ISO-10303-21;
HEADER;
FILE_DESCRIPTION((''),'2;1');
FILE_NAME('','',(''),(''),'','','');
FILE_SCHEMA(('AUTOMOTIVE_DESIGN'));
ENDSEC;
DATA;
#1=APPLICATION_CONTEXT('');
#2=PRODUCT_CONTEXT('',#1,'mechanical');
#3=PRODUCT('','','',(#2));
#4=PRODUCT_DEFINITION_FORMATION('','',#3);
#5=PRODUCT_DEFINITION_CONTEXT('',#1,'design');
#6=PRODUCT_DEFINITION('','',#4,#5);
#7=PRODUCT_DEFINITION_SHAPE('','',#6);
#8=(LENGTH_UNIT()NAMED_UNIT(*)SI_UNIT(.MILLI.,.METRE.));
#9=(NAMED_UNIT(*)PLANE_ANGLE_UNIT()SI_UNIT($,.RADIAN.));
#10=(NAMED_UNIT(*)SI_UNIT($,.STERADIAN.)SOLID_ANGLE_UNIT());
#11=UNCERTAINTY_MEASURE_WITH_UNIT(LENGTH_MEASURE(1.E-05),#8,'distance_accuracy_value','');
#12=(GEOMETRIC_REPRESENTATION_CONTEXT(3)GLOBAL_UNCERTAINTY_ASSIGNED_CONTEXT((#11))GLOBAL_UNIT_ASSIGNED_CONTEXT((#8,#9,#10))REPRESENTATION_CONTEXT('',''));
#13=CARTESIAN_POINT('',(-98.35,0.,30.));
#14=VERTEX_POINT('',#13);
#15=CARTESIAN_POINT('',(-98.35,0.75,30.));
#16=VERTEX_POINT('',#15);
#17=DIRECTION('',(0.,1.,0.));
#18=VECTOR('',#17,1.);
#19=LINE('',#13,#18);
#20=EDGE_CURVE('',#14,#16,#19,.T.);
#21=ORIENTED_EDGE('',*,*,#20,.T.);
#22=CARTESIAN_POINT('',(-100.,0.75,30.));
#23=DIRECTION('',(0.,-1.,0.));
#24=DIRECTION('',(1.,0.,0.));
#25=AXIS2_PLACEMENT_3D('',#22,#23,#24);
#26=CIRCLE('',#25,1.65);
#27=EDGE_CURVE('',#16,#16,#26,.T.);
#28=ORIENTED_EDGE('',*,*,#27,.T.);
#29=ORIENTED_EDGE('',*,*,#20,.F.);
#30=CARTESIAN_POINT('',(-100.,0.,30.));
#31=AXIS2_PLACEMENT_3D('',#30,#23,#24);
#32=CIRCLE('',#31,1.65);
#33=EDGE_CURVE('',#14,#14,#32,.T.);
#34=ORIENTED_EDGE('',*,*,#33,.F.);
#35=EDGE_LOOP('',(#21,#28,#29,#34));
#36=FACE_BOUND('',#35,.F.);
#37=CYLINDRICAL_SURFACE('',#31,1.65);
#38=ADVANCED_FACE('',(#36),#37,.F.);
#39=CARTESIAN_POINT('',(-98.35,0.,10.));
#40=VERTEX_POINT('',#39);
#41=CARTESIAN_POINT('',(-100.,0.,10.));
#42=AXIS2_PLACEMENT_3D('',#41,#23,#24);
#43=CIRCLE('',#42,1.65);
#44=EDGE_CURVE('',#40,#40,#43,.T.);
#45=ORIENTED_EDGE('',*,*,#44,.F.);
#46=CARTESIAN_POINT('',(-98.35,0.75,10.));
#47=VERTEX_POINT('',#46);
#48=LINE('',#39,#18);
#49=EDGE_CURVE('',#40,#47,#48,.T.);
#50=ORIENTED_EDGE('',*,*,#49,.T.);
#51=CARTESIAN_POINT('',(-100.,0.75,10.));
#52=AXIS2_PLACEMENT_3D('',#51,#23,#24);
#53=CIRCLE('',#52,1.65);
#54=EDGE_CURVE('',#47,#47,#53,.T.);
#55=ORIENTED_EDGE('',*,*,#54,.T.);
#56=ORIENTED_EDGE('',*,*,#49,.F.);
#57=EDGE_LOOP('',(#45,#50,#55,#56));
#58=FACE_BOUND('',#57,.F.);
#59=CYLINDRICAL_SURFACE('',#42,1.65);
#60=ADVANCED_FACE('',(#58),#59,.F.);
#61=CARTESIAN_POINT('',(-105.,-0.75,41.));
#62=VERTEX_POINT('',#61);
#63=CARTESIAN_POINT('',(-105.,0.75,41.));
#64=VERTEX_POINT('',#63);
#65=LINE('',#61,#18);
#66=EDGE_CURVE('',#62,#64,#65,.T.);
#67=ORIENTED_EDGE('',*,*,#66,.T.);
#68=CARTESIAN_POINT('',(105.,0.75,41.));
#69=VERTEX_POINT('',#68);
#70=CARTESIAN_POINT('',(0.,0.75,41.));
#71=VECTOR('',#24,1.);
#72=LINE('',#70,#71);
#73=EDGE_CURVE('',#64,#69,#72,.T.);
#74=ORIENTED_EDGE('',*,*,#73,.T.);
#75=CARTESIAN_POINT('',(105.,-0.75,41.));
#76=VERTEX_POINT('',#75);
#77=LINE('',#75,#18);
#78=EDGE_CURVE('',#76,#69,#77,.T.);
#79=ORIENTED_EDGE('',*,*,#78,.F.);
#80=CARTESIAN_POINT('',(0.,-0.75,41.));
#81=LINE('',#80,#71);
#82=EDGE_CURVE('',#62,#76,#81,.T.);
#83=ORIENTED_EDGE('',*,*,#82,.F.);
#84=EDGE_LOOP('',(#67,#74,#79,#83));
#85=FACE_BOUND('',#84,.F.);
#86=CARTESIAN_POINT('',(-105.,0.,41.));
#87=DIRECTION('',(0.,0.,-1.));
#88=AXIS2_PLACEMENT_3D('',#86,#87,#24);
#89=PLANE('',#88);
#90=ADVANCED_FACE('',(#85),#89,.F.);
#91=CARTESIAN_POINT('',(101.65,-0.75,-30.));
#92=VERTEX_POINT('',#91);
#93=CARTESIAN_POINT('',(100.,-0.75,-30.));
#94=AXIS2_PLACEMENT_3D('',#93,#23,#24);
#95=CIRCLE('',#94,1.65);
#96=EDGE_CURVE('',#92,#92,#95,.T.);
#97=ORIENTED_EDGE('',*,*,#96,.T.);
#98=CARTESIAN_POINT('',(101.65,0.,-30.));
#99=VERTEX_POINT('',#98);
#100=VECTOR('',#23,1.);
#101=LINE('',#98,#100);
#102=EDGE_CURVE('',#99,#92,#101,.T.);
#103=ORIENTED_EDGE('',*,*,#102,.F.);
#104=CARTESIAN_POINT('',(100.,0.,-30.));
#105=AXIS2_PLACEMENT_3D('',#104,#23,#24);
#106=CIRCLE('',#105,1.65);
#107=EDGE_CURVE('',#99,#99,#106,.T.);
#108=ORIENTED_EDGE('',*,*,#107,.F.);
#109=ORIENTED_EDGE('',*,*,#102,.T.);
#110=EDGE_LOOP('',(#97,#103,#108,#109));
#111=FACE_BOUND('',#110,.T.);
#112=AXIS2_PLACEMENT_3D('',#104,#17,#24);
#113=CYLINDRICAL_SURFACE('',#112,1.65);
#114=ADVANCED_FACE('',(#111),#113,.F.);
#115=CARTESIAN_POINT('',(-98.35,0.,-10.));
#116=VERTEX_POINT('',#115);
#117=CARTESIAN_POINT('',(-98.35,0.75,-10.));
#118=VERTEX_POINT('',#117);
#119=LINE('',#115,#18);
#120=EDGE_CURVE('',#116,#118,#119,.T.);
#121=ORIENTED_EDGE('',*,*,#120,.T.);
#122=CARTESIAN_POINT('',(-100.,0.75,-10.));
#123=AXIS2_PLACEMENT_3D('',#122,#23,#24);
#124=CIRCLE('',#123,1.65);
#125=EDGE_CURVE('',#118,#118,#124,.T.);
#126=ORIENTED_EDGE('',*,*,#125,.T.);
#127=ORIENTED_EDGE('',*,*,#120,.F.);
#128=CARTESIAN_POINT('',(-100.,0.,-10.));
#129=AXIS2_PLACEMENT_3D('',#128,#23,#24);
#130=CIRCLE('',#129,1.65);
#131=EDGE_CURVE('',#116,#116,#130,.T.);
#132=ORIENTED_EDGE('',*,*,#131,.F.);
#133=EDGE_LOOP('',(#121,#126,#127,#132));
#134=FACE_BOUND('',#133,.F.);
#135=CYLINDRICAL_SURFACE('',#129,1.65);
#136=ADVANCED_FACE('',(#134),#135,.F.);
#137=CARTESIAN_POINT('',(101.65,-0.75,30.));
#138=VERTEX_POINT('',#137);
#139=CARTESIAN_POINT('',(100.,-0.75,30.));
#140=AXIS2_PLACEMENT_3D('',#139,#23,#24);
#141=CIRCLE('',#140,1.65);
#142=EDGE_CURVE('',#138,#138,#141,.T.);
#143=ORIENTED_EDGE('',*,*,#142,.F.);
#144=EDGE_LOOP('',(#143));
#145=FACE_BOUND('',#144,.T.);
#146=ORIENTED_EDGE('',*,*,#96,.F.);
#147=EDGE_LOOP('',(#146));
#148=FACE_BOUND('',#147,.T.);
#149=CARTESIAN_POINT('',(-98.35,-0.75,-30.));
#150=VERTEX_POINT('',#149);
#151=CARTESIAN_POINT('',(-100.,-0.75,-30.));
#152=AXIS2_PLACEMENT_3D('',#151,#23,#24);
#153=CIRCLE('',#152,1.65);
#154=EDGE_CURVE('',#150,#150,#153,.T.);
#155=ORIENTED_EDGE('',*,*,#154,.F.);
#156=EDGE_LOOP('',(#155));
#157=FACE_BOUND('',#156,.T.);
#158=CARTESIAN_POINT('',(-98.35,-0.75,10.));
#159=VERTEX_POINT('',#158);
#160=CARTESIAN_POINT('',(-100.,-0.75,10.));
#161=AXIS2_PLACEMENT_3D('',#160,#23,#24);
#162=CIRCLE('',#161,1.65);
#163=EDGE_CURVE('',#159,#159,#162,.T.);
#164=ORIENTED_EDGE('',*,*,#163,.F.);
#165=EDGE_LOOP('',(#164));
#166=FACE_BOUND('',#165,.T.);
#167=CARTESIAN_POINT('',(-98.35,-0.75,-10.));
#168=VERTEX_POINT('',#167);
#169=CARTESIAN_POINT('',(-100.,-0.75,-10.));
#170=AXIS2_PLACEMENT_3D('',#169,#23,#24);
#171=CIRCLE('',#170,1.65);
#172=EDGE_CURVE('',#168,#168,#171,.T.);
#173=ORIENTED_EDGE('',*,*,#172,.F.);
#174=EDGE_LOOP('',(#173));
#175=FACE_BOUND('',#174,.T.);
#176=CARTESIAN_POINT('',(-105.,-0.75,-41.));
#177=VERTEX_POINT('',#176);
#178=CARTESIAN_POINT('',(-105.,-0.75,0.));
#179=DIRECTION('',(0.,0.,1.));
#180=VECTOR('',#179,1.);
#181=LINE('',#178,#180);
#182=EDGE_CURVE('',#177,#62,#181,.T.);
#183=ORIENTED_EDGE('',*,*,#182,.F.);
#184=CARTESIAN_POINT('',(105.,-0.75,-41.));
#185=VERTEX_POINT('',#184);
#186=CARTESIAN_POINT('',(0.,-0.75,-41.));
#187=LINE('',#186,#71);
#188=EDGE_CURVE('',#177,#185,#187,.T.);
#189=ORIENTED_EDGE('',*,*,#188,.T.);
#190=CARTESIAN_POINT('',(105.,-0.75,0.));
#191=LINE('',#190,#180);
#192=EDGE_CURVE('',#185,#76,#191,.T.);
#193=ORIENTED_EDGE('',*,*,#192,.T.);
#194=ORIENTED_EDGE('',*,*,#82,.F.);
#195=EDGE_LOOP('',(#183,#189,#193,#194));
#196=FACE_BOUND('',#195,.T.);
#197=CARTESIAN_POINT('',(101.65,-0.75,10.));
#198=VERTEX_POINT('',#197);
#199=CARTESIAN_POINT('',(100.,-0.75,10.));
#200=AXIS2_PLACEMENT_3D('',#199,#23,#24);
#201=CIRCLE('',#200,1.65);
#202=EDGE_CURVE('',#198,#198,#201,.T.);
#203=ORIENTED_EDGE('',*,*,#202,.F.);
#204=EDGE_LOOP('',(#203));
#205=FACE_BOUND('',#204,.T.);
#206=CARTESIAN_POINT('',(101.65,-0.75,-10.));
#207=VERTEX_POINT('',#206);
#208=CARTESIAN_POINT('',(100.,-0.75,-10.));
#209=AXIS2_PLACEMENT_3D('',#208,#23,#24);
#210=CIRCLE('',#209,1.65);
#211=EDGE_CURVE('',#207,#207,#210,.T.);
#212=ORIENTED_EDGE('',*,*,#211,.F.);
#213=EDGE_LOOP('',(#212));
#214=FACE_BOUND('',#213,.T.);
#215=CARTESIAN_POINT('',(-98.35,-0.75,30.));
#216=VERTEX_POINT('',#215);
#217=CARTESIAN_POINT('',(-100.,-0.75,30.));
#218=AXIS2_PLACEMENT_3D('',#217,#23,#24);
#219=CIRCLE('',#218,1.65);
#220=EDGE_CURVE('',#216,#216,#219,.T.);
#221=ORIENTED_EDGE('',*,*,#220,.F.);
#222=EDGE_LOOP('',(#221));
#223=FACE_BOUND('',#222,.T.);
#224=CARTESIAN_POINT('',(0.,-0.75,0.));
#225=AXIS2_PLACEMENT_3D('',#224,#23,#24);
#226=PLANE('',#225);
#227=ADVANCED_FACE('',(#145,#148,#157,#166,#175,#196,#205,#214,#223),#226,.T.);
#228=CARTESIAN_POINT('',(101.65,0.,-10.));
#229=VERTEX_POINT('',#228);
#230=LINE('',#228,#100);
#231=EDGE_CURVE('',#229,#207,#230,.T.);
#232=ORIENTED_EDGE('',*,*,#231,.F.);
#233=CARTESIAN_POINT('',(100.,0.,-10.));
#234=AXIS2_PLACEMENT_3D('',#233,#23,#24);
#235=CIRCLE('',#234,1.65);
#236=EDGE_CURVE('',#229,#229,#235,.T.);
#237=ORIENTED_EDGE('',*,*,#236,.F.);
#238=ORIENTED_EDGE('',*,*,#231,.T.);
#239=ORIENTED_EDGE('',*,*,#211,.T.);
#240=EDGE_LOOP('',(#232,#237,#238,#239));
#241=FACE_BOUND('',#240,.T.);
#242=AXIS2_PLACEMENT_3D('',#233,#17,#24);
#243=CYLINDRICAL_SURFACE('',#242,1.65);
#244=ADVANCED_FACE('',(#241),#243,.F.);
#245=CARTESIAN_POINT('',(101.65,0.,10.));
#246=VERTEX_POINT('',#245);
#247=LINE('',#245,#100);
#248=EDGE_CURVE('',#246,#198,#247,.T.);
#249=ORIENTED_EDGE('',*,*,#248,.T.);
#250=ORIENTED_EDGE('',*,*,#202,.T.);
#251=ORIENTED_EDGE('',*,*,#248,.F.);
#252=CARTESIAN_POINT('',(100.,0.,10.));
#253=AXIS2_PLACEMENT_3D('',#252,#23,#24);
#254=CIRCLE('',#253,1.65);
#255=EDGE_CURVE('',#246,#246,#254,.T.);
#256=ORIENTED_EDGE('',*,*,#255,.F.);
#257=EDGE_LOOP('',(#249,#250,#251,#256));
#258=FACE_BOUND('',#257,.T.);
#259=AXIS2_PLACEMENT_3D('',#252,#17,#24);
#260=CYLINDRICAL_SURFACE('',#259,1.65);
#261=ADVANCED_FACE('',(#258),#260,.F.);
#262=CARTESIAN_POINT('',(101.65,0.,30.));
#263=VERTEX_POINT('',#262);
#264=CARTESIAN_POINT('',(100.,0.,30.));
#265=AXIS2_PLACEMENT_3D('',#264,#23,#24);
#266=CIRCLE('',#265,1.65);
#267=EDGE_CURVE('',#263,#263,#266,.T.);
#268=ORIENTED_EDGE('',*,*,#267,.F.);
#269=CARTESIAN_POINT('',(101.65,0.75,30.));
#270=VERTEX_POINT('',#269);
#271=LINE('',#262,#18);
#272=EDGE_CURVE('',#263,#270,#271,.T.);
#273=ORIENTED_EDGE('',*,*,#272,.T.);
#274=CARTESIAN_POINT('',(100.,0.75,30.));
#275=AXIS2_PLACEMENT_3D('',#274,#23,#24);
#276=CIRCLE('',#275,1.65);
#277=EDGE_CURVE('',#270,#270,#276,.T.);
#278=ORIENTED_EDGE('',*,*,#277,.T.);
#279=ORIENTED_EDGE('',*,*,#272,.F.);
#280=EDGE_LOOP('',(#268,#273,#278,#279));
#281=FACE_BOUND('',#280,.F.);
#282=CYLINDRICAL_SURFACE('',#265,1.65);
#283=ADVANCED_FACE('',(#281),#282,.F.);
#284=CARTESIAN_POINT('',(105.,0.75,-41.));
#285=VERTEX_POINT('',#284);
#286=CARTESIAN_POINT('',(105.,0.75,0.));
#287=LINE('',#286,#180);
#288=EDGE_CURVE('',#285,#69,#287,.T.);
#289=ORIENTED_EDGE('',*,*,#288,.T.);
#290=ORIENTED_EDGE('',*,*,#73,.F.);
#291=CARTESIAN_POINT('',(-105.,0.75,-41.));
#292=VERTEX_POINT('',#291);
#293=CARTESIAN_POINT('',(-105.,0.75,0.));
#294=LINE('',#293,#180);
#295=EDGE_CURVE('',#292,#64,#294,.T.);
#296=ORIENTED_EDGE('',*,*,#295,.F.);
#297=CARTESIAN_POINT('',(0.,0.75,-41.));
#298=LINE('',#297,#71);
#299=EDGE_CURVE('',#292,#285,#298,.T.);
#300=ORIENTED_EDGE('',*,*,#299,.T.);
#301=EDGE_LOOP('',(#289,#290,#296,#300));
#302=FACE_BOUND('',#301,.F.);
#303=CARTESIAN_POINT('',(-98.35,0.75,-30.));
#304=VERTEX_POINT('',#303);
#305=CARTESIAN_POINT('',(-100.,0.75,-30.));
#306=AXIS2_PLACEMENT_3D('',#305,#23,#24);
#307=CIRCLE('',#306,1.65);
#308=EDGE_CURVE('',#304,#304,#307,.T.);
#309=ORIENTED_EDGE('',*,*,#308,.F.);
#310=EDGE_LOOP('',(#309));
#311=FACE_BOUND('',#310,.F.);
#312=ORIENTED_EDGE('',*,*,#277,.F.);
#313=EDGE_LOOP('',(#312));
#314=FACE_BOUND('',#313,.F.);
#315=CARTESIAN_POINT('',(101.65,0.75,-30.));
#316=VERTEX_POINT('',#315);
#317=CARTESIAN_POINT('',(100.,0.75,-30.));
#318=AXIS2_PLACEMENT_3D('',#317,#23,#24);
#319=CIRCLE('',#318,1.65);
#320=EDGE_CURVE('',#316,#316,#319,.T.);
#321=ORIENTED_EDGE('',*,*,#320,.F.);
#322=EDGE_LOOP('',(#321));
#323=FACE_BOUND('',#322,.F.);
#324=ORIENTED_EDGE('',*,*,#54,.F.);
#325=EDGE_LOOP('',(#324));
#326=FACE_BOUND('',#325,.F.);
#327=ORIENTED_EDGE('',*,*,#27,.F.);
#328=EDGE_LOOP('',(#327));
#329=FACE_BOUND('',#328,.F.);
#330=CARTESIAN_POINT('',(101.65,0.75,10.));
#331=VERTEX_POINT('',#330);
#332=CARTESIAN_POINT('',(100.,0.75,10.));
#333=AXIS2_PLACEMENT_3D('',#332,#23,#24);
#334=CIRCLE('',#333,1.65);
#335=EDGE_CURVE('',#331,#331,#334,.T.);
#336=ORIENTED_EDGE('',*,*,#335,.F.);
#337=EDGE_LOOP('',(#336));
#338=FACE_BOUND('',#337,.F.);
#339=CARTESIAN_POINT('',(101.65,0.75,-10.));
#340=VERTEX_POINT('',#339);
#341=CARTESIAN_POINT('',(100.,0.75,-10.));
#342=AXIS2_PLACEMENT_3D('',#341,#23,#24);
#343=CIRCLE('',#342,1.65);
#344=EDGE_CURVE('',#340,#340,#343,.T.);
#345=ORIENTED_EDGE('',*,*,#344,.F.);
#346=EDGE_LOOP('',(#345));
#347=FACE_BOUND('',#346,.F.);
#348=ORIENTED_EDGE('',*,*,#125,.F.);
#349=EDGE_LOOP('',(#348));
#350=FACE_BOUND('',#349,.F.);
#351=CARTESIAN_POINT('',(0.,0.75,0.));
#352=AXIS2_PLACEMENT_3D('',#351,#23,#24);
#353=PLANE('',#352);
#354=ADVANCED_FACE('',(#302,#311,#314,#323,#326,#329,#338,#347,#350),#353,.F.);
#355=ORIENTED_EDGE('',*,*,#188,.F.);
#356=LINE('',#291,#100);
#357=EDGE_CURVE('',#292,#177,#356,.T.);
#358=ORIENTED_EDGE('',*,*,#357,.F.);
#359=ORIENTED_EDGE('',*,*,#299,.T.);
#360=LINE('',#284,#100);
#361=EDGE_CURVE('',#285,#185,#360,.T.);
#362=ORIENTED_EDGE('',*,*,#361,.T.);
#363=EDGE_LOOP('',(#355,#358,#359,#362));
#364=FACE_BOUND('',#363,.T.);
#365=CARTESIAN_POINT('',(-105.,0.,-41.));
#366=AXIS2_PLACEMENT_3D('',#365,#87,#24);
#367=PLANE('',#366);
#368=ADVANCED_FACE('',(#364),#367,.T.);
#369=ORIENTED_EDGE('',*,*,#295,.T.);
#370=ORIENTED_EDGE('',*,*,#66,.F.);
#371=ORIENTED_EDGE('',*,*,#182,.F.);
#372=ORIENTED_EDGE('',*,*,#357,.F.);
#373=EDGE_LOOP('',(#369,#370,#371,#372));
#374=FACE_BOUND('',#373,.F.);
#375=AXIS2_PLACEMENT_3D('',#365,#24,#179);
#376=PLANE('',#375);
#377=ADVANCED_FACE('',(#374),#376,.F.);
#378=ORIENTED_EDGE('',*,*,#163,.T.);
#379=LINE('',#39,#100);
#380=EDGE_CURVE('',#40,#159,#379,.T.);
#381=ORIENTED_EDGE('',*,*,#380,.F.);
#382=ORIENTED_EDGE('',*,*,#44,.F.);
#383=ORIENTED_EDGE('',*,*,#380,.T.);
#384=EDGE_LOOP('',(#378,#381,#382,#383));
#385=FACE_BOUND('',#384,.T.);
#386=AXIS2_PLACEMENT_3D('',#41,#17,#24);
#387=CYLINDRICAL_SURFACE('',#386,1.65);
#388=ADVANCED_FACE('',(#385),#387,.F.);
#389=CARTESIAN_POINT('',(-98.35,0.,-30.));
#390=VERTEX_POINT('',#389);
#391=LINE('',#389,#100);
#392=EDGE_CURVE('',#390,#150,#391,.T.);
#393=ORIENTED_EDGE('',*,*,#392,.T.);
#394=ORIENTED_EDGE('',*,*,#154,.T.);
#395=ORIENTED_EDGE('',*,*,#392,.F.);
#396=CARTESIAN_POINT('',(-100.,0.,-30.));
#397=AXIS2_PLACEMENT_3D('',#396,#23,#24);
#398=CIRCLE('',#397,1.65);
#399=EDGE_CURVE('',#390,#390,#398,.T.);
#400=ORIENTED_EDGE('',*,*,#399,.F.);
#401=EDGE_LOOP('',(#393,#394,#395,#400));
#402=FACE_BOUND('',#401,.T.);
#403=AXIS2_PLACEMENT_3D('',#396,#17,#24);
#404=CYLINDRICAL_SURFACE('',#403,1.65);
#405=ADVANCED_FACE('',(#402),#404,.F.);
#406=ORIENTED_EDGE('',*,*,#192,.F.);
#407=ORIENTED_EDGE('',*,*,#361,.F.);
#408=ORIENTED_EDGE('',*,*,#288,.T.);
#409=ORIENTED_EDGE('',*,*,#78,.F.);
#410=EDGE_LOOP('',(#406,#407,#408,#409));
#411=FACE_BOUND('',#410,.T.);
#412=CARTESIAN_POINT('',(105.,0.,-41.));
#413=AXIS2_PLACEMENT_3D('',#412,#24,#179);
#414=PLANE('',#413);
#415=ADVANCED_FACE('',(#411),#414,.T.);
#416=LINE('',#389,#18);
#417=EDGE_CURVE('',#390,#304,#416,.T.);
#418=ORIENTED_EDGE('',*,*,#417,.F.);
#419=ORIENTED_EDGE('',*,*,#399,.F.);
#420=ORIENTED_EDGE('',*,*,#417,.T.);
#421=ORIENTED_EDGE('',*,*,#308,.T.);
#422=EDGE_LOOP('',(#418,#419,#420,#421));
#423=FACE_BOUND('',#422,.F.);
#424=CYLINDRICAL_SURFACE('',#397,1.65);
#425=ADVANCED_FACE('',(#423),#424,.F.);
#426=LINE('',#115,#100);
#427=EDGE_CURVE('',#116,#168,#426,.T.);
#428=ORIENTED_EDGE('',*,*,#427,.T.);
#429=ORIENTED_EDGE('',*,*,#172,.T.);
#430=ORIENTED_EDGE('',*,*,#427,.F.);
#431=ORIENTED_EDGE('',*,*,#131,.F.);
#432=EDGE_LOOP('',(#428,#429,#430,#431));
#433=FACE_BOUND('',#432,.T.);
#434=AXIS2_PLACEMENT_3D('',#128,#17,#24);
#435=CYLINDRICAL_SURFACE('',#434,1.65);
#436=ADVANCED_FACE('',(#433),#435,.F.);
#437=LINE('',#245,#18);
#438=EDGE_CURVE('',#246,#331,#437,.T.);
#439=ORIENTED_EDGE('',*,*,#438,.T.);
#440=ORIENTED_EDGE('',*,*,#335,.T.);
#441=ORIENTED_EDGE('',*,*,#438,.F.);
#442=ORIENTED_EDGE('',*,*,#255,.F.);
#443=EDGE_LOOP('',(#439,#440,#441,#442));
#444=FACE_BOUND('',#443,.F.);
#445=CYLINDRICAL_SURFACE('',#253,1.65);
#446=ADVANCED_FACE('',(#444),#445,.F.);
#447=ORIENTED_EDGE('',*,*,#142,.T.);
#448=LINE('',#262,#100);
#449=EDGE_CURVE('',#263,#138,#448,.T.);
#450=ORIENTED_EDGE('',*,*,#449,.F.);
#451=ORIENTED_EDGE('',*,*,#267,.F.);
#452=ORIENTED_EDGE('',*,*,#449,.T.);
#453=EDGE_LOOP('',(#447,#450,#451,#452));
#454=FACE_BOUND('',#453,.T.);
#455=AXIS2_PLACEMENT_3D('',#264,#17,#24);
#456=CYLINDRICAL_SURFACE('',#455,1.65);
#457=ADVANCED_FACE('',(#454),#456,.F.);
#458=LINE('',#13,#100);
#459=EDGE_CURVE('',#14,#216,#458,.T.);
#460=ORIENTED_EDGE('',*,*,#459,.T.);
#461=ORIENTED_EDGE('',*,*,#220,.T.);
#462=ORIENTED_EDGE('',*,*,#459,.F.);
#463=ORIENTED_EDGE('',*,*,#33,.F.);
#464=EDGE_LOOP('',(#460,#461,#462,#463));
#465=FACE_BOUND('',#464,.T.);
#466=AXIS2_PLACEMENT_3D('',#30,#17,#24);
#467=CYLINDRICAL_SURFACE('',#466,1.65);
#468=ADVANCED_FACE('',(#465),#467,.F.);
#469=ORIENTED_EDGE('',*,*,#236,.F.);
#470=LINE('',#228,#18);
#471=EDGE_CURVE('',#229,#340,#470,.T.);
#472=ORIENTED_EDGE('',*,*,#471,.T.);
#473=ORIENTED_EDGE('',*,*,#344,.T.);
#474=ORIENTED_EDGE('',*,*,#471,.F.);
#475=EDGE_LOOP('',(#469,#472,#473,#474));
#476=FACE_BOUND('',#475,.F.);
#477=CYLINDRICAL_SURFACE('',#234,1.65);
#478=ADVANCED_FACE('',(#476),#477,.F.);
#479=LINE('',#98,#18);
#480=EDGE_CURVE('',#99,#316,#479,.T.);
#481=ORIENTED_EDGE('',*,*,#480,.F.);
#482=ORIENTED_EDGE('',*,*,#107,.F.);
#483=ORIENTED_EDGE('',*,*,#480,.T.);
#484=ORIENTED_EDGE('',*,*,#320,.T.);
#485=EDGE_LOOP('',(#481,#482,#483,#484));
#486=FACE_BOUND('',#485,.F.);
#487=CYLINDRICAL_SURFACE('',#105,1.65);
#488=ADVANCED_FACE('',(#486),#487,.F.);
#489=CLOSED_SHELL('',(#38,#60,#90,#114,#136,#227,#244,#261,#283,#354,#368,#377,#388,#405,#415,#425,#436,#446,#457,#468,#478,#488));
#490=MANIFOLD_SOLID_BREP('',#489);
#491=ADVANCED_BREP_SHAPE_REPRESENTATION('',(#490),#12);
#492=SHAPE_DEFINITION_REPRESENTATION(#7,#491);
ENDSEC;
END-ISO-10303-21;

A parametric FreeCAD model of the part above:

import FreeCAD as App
import Part
import Sketcher
from FreeCAD import Vector

doc = App.newDocument("Part")
body = doc.addObject("PartDesign::Body", "Body")

# Sketch on XZ plane
sketch1 = body.newObject("Sketcher::SketchObject", "Sketch")
sketch1.AttachmentSupport = (doc.getObject("XZ_Plane"), [""])
sketch1.MapMode = "FlatFace"
sketch1.addGeometry(Part.LineSegment(Vector(-105, 41, 0), Vector(-105, -41, 0)), False)
sketch1.addGeometry(Part.LineSegment(Vector(-105, -41, 0), Vector(105, -41, 0)), False)
sketch1.addGeometry(Part.LineSegment(Vector(105, -41, 0), Vector(105, 41, 0)), False)
sketch1.addGeometry(Part.LineSegment(Vector(105, 41, 0), Vector(-105, 41, 0)), False)
sketch1.addGeometry(Part.Circle(Vector(-100, -30, 0), Vector(0, 0, 1), 1.65), False)
sketch1.addGeometry(Part.Circle(Vector(-100, -10, 0), Vector(0, 0, 1), 1.65), False)
sketch1.addGeometry(Part.Circle(Vector(100, -30, 0), Vector(0, 0, 1), 1.65), False)
sketch1.addGeometry(Part.Circle(Vector(100, -10, 0), Vector(0, 0, 1), 1.65), False)
sketch1.addGeometry(Part.Circle(Vector(-100, 10, 0), Vector(0, 0, 1), 1.65), False)
sketch1.addGeometry(Part.Circle(Vector(-100, 30, 0), Vector(0, 0, 1), 1.65), False)
sketch1.addGeometry(Part.Circle(Vector(100, 10, 0), Vector(0, 0, 1), 1.65), False)
sketch1.addGeometry(Part.Circle(Vector(100, 30, 0), Vector(0, 0, 1), 1.65), False)
sketch1.addConstraint(Sketcher.Constraint("Coincident", 0, 2, 1, 1))
sketch1.addConstraint(Sketcher.Constraint("Coincident", 1, 2, 2, 1))
sketch1.addConstraint(Sketcher.Constraint("Coincident", 2, 2, 3, 1))
sketch1.addConstraint(Sketcher.Constraint("Coincident", 3, 2, 0, 1))
sketch1.addConstraint(Sketcher.Constraint("Vertical", 0))
sketch1.addConstraint(Sketcher.Constraint("Horizontal", 1))
sketch1.addConstraint(Sketcher.Constraint("Vertical", 2))
sketch1.addConstraint(Sketcher.Constraint("Horizontal", 3))
sketch1.addConstraint(Sketcher.Constraint("Equal", 4, 5))
sketch1.addConstraint(Sketcher.Constraint("Equal", 5, 6))
sketch1.addConstraint(Sketcher.Constraint("Equal", 6, 7))
sketch1.addConstraint(Sketcher.Constraint("Equal", 7, 8))
sketch1.addConstraint(Sketcher.Constraint("Equal", 8, 9))
sketch1.addConstraint(Sketcher.Constraint("Equal", 9, 10))
sketch1.addConstraint(Sketcher.Constraint("Equal", 10, 11))
sketch1.addConstraint(Sketcher.Constraint("Symmetric", 7, 3, 8, 3, -1, 1))
sketch1.addConstraint(Sketcher.Constraint("Symmetric", 6, 3, 9, 3, -1, 1))
sketch1.addConstraint(Sketcher.Constraint("Symmetric", 5, 3, 10, 3, -1, 1))
sketch1.addConstraint(Sketcher.Constraint("Symmetric", 4, 3, 11, 3, -1, 1))
sketch1.addConstraint(Sketcher.Constraint("Symmetric", 0, 2, 2, 2, -1, 1))
sketch1.addConstraint(Sketcher.Constraint("Symmetric", 4, 3, 6, 3, -2))
sketch1.addConstraint(Sketcher.Constraint("Symmetric", 5, 3, 7, 3, -2))
sketch1.addConstraint(Sketcher.Constraint("Vertical", 4, 3, 5, 3))
sketch1.addConstraint(Sketcher.Constraint("Diameter", 4, 3.3))
sketch1.addConstraint(Sketcher.Constraint("DistanceX", 1, 1, 1, 2, 210.0))
sketch1.addConstraint(Sketcher.Constraint("DistanceY", 0, 2, 0, 1, 82.0))
sketch1.addConstraint(Sketcher.Constraint("DistanceX", 4, 3, -1, 1, 100.0))
sketch1.addConstraint(Sketcher.Constraint("DistanceY", 4, 3, -1, 1, 30.0))
sketch1.addConstraint(Sketcher.Constraint("DistanceY", 5, 3, -1, 1, 10.0))
pad1 = body.newObject("PartDesign::Pad", "Pad")
pad1.Profile = sketch1
pad1.Type = "TwoLengths"
pad1.Length = 0.75
pad1.Length2 = 0.75

doc.recompute()
